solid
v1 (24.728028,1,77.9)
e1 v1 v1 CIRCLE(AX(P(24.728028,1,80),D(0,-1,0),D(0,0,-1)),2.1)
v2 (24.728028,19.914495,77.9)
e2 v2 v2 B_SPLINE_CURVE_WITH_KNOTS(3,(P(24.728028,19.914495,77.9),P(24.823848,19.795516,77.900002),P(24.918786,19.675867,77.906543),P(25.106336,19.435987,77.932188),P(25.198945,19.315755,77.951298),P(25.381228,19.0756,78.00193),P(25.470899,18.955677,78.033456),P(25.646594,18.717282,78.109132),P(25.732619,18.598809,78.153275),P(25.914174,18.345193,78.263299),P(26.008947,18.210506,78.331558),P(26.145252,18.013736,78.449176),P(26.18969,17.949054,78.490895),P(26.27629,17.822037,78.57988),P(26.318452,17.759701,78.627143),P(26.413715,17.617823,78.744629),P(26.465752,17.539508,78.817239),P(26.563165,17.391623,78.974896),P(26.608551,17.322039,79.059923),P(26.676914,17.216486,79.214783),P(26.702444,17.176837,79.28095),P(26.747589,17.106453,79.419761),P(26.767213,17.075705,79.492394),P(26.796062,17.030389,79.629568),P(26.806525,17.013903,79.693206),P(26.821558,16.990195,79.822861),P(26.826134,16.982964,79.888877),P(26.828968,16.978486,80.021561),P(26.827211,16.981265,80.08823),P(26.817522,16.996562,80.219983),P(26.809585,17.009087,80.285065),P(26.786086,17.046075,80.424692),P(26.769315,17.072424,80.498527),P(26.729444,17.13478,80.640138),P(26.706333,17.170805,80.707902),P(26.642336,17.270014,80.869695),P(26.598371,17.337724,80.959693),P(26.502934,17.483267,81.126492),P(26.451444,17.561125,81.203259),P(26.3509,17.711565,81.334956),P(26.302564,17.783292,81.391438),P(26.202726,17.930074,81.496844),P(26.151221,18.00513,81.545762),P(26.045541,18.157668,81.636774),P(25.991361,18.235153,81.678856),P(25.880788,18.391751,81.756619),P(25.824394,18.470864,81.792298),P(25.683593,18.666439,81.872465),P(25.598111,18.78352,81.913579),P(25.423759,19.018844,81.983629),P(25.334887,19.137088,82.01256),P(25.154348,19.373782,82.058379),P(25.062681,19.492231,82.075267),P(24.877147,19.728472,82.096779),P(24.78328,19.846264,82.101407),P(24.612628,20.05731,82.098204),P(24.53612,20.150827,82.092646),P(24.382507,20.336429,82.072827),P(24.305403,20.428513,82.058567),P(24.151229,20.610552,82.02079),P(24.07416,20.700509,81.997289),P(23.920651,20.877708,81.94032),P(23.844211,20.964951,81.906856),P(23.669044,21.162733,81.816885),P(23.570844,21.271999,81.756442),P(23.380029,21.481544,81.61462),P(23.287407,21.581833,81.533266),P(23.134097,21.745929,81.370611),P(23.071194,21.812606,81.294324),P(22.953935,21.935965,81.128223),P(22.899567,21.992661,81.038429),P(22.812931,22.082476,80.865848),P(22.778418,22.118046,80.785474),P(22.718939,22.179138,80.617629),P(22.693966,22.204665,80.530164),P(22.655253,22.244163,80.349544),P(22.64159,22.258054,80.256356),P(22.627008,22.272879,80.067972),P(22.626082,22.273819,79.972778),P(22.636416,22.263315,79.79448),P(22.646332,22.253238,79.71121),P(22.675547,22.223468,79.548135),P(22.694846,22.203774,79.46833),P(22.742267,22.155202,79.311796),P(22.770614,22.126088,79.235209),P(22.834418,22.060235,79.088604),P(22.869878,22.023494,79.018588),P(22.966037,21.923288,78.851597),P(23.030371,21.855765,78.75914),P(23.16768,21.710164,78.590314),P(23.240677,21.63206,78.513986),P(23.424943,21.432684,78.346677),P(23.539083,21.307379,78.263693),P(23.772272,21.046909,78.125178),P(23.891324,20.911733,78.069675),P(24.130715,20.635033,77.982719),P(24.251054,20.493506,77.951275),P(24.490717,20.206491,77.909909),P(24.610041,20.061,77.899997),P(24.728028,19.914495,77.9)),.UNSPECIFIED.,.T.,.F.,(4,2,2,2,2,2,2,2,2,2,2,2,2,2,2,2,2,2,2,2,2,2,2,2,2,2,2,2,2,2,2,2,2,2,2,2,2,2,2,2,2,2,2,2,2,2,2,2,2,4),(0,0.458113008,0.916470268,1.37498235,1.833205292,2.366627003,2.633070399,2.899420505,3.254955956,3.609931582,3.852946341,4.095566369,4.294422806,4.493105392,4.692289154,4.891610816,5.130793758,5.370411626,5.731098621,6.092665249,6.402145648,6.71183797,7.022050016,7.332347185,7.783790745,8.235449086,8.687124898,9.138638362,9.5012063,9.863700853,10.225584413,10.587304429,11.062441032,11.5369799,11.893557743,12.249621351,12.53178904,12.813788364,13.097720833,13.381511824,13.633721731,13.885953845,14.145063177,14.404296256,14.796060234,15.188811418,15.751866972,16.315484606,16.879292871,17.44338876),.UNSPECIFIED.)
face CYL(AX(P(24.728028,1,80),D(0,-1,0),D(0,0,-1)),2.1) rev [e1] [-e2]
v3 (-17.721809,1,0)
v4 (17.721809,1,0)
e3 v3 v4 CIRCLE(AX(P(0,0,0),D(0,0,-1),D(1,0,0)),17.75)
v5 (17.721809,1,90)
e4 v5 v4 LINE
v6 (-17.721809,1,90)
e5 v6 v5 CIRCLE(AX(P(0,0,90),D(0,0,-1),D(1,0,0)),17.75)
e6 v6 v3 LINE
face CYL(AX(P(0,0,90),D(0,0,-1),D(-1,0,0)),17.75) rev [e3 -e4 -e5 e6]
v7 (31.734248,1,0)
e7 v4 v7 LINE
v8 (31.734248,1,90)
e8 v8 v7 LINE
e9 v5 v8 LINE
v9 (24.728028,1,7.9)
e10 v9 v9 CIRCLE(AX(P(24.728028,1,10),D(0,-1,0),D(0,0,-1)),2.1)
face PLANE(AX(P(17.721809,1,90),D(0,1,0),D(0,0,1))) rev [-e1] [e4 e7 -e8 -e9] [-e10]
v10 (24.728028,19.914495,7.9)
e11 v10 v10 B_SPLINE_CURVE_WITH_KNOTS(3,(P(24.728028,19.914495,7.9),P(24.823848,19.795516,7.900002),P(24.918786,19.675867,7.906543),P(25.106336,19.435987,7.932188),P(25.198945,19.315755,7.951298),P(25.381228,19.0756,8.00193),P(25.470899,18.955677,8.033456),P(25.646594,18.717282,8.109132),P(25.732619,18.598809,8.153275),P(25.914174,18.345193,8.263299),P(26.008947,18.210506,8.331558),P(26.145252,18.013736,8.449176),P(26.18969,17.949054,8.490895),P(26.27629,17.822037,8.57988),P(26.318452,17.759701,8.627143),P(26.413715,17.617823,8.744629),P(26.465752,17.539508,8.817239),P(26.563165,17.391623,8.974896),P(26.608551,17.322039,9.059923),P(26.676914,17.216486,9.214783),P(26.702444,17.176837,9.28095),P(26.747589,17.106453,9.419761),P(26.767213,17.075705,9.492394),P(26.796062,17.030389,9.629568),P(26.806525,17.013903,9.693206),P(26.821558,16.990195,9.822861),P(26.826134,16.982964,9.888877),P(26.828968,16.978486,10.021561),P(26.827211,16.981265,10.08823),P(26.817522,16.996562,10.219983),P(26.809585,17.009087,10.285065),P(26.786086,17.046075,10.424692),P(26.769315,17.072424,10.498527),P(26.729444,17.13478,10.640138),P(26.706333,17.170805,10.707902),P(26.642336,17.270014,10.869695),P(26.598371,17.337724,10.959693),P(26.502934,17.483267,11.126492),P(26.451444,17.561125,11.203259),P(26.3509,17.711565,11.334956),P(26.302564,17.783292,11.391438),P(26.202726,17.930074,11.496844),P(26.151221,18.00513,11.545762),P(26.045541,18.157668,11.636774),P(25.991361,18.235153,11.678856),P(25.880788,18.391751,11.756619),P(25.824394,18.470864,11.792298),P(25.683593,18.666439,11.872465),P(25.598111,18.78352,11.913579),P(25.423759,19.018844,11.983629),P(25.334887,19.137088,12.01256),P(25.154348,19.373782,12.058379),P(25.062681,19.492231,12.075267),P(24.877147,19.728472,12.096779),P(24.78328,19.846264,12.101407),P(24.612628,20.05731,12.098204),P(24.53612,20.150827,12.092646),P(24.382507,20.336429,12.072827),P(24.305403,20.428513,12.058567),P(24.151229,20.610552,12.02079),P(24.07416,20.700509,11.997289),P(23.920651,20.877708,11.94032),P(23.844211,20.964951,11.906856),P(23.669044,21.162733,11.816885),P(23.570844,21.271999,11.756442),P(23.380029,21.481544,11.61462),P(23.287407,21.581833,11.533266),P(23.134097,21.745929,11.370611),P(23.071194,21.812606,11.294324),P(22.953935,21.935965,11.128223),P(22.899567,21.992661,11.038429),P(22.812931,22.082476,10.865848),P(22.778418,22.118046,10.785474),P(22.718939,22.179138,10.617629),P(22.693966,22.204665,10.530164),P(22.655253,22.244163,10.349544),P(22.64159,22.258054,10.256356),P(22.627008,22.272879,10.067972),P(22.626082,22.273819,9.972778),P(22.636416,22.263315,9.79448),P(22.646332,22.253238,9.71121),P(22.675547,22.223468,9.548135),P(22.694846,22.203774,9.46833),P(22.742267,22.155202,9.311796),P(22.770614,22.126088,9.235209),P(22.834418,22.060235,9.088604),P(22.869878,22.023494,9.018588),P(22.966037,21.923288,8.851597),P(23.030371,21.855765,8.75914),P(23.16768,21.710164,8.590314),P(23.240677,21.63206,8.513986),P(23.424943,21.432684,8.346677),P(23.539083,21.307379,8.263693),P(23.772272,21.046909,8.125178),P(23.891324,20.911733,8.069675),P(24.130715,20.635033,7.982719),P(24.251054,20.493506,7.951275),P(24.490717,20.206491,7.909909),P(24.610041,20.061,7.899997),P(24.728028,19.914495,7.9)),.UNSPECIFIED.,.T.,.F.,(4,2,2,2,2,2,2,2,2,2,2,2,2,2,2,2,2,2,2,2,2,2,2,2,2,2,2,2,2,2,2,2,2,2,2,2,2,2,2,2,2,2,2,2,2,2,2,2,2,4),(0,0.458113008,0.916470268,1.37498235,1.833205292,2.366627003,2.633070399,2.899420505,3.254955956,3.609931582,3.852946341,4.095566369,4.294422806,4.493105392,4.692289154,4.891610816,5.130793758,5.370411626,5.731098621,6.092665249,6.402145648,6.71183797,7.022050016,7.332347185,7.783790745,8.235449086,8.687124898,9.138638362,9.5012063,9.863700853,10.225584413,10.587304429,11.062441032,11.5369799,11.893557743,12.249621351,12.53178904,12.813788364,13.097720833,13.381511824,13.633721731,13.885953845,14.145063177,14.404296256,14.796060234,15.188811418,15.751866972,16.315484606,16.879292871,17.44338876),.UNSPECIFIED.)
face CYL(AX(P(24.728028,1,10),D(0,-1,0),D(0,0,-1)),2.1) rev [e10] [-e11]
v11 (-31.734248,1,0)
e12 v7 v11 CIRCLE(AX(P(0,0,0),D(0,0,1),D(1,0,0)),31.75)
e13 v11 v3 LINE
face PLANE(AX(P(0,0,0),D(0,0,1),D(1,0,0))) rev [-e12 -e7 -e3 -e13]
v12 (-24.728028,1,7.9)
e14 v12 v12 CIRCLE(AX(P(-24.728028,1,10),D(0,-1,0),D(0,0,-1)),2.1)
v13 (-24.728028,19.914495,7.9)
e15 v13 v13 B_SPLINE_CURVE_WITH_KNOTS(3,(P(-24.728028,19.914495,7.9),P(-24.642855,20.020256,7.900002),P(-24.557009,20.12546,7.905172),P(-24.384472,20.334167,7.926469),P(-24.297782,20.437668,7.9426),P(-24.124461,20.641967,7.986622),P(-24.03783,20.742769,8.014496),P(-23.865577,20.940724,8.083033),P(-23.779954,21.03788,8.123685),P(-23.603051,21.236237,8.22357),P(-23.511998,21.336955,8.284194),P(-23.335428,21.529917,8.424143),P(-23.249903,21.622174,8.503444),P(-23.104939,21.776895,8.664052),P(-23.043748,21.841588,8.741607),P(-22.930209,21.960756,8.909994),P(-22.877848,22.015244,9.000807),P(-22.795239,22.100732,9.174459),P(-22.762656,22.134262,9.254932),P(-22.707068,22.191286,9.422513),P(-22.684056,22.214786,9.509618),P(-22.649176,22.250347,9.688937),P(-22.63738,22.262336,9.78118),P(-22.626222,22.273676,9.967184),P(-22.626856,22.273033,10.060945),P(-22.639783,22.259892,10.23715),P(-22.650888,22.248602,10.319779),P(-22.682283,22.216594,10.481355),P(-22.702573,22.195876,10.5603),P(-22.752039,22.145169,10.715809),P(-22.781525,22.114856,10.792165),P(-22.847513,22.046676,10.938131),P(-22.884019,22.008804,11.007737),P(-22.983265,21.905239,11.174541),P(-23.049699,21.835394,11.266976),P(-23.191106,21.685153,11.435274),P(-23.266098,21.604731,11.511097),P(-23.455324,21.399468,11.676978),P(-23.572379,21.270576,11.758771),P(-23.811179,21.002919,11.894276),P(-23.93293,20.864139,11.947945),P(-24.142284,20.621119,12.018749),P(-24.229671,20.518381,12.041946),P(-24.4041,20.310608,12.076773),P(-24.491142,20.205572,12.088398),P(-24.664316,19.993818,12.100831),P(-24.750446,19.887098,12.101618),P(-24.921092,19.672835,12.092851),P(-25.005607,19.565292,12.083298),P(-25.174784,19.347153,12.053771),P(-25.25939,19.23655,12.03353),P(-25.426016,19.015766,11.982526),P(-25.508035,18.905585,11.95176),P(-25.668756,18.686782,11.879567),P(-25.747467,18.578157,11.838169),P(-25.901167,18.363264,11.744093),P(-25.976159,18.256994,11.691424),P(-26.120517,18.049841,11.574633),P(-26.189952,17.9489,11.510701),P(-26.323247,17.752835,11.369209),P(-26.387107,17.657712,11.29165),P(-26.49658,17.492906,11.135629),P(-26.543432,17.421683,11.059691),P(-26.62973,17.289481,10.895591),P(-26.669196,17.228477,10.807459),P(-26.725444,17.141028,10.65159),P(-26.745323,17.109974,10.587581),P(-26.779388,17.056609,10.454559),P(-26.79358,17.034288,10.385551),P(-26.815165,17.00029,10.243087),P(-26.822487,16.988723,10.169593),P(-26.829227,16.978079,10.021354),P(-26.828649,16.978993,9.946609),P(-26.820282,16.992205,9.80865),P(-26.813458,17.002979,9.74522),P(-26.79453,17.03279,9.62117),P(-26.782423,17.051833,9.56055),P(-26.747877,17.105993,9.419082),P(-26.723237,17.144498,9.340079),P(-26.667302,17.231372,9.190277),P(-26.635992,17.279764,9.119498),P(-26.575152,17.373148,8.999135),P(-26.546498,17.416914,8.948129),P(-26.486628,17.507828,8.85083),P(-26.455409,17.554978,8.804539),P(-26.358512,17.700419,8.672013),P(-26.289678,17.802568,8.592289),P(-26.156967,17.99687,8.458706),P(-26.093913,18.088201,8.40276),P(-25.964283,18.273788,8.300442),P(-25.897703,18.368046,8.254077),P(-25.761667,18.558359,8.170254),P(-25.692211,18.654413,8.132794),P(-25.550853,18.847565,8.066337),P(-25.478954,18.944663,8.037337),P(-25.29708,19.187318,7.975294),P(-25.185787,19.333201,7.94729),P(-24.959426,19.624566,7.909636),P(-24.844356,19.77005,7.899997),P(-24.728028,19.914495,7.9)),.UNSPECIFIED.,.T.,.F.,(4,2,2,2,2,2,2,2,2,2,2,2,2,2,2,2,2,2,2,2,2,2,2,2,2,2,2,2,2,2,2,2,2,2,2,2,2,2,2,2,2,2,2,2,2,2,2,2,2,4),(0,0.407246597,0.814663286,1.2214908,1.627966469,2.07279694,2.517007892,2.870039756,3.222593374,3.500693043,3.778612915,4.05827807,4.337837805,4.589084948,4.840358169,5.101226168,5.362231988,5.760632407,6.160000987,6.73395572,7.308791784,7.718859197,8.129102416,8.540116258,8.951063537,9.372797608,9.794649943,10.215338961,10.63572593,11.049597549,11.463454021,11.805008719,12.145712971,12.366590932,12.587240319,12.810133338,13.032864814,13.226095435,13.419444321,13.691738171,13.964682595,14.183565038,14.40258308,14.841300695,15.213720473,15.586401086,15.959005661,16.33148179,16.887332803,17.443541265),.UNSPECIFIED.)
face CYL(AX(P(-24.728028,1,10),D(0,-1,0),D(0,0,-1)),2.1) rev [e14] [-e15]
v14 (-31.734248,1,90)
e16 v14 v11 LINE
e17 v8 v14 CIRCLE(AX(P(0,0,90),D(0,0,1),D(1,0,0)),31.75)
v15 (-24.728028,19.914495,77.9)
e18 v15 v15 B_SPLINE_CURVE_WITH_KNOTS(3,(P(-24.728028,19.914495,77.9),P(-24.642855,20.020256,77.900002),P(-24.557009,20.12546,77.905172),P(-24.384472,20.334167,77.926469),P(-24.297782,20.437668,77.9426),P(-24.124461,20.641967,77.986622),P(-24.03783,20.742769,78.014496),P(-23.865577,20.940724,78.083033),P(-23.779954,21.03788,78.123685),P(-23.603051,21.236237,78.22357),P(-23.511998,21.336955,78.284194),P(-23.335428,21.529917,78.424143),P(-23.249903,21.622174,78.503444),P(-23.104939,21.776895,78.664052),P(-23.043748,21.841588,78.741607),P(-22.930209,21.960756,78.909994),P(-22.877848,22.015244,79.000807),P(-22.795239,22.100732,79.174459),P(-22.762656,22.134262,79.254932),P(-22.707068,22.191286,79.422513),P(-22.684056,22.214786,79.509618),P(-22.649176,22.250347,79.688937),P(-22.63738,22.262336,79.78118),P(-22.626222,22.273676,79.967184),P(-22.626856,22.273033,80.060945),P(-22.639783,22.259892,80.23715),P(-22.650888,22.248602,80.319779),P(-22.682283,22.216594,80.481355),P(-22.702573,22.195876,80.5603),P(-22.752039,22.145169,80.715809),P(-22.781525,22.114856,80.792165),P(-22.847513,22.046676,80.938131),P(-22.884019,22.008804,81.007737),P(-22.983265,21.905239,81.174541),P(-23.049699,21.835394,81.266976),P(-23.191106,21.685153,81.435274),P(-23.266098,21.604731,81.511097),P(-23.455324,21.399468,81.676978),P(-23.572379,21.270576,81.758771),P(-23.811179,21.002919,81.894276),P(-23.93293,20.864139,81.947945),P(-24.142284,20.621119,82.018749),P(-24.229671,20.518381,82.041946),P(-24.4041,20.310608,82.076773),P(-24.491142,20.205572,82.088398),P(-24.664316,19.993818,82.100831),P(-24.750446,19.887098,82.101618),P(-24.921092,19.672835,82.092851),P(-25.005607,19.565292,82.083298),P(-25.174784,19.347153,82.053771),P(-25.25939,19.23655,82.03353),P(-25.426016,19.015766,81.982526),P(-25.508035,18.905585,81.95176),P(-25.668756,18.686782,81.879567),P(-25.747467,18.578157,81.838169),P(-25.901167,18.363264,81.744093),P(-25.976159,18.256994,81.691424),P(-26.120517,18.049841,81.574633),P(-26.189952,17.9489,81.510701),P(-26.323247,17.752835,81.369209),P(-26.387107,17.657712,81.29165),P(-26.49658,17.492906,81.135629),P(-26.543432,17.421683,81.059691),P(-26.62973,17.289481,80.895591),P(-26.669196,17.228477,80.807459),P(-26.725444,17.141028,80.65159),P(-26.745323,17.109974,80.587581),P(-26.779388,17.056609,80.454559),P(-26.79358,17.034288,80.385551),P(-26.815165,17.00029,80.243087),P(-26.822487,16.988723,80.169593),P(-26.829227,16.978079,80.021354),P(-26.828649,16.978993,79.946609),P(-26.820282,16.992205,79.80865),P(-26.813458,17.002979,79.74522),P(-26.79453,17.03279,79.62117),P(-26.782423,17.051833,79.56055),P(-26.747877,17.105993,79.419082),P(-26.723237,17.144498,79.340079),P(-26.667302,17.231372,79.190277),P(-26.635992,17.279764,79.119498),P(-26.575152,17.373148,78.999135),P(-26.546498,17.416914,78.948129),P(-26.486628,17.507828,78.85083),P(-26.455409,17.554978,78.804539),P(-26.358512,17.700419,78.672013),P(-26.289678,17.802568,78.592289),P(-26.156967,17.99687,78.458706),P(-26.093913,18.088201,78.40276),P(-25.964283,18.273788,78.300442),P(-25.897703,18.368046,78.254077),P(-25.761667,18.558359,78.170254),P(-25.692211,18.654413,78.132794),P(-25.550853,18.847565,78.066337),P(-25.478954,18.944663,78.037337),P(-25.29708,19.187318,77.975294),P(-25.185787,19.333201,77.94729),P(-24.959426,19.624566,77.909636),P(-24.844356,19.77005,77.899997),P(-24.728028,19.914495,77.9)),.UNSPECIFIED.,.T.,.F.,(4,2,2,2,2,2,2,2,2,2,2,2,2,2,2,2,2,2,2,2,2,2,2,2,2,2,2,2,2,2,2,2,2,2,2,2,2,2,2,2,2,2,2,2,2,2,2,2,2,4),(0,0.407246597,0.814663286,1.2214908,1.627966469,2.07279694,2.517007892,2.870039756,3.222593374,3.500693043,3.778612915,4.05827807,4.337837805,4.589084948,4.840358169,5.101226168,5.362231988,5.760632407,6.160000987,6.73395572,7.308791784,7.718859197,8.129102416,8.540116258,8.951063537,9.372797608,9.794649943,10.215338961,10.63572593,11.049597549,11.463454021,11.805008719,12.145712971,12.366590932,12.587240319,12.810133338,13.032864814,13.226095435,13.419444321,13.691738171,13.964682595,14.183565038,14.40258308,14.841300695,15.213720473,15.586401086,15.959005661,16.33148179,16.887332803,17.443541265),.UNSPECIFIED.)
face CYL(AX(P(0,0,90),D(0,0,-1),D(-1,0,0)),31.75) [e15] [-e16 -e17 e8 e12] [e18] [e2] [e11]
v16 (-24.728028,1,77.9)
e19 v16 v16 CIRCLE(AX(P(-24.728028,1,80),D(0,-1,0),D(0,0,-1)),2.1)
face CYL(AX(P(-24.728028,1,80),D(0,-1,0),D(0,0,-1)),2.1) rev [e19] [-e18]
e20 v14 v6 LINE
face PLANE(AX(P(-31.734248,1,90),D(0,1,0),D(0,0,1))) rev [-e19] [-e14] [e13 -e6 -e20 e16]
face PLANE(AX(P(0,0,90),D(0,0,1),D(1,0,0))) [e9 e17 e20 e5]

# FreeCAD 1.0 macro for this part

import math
import FreeCAD as App
import Part
import Sketcher
from FreeCAD import Vector

doc = App.newDocument("Part")
body = doc.addObject("PartDesign::Body", "Body")

sketch1 = body.newObject("Sketcher::SketchObject", "Sketch")
sketch1.AttachmentSupport = (doc.getObject("XY_Plane"), [""])
sketch1.MapMode = "FlatFace"
sketch1.addGeometry([
    Part.LineSegment(Vector(-31.734248, 1, 0), Vector(-17.721809, 1, 0)),
    Part.ArcOfCircle(Part.Circle(Vector(0, 0, 0), Vector(0, 0, 1), 17.75), math.radians(3.229641), math.radians(176.770359)),
    Part.LineSegment(Vector(17.721809, 1, 0), Vector(31.734248, 1, 0)),
    Part.ArcOfCircle(Part.Circle(Vector(0, 0, 0), Vector(0, 0, 1), 31.75), math.radians(1.80489), math.radians(178.19511)),
], False)
sketch1.addConstraint([
    Sketcher.Constraint("Coincident", 0, 2, 1, 2),
    Sketcher.Constraint("Coincident", 1, 1, 2, 1),
    Sketcher.Constraint("Coincident", 2, 2, 3, 1),
    Sketcher.Constraint("Coincident", 3, 2, 0, 1),
    Sketcher.Constraint("Horizontal", 0),
    Sketcher.Constraint("Horizontal", 2),
    Sketcher.Constraint("Coincident", 1, 3, -1, 1),
    Sketcher.Constraint("Coincident", 3, 3, -1, 1),
    Sketcher.Constraint("Horizontal", 0, 2, 1, 1),
    Sketcher.Constraint("Radius", 1, 17.75),
    Sketcher.Constraint("Radius", 3, 31.75),
    Sketcher.Constraint("DistanceY", -1, 1, 0, 2, 1.0),
])
pad1 = body.newObject("PartDesign::Pad", "Pad")
pad1.Profile = sketch1
pad1.Length = 90

sketch2 = body.newObject("Sketcher::SketchObject", "Sketch001")
sketch2.AttachmentSupport = (doc.getObject("XZ_Plane"), [""])
sketch2.MapMode = "FlatFace"
sketch2.AttachmentOffset = App.Placement(Vector(0, 0, -1), App.Rotation())
sketch2.addGeometry([
    Part.Circle(Vector(-24.728028, 80, 0), Vector(0, 0, 1), 2.1),
    Part.Circle(Vector(-24.728028, 10, 0), Vector(0, 0, 1), 2.1),
    Part.Circle(Vector(24.728028, 80, 0), Vector(0, 0, 1), 2.1),
    Part.Circle(Vector(24.728028, 10, 0), Vector(0, 0, 1), 2.1),
], False)
sketch2.addConstraint([
    Sketcher.Constraint("Equal", 0, 1),
    Sketcher.Constraint("Equal", 1, 2),
    Sketcher.Constraint("Equal", 2, 3),
    Sketcher.Constraint("Symmetric", 0, 3, 2, 3, -2),
    Sketcher.Constraint("Symmetric", 1, 3, 3, 3, -2),
    Sketcher.Constraint("Vertical", 0, 3, 1, 3),
    Sketcher.Constraint("Diameter", 0, 4.2),
    Sketcher.Constraint("DistanceY", -1, 1, 0, 3, 80.0),
    Sketcher.Constraint("DistanceY", -1, 1, 1, 3, 10.0),
    Sketcher.Constraint("DistanceX", 0, 3, -1, 1, 24.728028),
])
doc.recompute()
hole = body.newObject("PartDesign::Hole", "Hole")
hole.Profile = sketch2
hole.ThreadType = "None"
hole.Diameter = 4.2
hole.DepthType = "ThroughAll"

doc.recompute()
